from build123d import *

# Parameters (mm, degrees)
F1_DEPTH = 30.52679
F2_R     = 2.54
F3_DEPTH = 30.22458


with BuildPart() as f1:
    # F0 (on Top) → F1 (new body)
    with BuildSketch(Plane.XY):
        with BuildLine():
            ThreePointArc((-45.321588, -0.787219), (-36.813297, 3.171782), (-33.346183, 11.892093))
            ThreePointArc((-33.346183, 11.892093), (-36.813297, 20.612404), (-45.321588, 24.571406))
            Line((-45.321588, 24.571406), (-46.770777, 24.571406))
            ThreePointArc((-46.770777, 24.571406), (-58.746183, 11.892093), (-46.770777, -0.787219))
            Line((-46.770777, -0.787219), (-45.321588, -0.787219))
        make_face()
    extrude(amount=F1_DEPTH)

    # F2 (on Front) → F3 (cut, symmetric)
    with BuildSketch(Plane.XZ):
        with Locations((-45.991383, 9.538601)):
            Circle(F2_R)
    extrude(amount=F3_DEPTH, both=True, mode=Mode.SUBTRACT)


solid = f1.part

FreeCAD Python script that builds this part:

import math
import FreeCAD as App
import Part
import Sketcher
Q = App.Units.Quantity

doc = App.newDocument("Part")
body = doc.addObject("PartDesign::Body", "Body")

# Sketch on XY plane
sketch1 = doc.addObject("Sketcher::SketchObject", "Sketch")
body.addObject(sketch1)
sketch1.AttachmentSupport = (doc.XY_Plane, [""])
sketch1.MapMode = "FlatFace"
sketch1.addGeometry(Part.ArcOfCircle(Part.Circle(App.Vector(-46, 11.9, 0), App.Vector(0, 0, 1), 12.7), math.radians(-87), math.radians(0)), False)
sketch1.addGeometry(Part.ArcOfCircle(Part.Circle(App.Vector(-46, 11.9, 0), App.Vector(0, 0, 1), 12.7), math.radians(0), math.radians(87)), False)
sketch1.addGeometry(Part.LineSegment(App.Vector(-45.3, 24.6, 0), App.Vector(-46.8, 24.6, 0)), False)
sketch1.addGeometry(Part.ArcOfCircle(Part.Circle(App.Vector(-46, 11.9, 0), App.Vector(0, 0, 1), 12.7), math.radians(93), math.radians(267)), False)
sketch1.addGeometry(Part.LineSegment(App.Vector(-46.8, -0.8, 0), App.Vector(-45.3, -0.8, 0)), False)
sketch1.addConstraint(Sketcher.Constraint("Tangent", 0, 2, 1, 1))
sketch1.addConstraint(Sketcher.Constraint("Coincident", 1, 2, 2, 1))
sketch1.addConstraint(Sketcher.Constraint("Coincident", 2, 2, 3, 1))
sketch1.addConstraint(Sketcher.Constraint("Coincident", 3, 2, 4, 1))
sketch1.addConstraint(Sketcher.Constraint("Coincident", 4, 2, 0, 1))
sketch1.addConstraint(Sketcher.Constraint("Horizontal", 2))
sketch1.addConstraint(Sketcher.Constraint("Horizontal", 4))
sketch1.addConstraint(Sketcher.Constraint("Coincident", 3, 3, 0, 3))
sketch1.addConstraint(Sketcher.Constraint("Equal", 0, 1))
sketch1.addConstraint(Sketcher.Constraint("Equal", 1, 3))
sketch1.addConstraint(Sketcher.Constraint("Horizontal", 3, 3, 0, 2))
sketch1.addConstraint(Sketcher.Constraint("Vertical", 2, 2, 3, 2))
sketch1.addConstraint(Sketcher.Constraint("Radius", 0, Q("0.4999999 in")))
sketch1.addConstraint(Sketcher.Constraint("DistanceX", 2, 2, 2, 1, 1.449189))
sketch1.addConstraint(Sketcher.Constraint("DistanceX", 0, 3, -1, 1, 46.046182))
sketch1.addConstraint(Sketcher.Constraint("DistanceY", -1, 1, 0, 3, 11.892092))
pad1 = doc.addObject("PartDesign::Pad", "Pad")
body.addObject(pad1)
pad1.Profile = sketch1
pad1.Length = 30.52679

# Sketch on XZ plane
sketch2 = doc.addObject("Sketcher::SketchObject", "Sketch001")
body.addObject(sketch2)
sketch2.AttachmentSupport = (doc.XZ_Plane, [""])
sketch2.MapMode = "FlatFace"
sketch2.addGeometry(Part.Circle(App.Vector(-46, 9.5, 0), App.Vector(0, 0, 1), 2.5), False)
sketch2.addConstraint(Sketcher.Constraint("Diameter", 0, Q("0.2 in")))
sketch2.addConstraint(Sketcher.Constraint("DistanceY", -1, 1, 0, 3, 9.538601))
sketch2.addConstraint(Sketcher.Constraint("DistanceX", 0, 3, -1, 1, 45.991383))
pocket1 = doc.addObject("PartDesign::Pocket", "Pocket")
body.addObject(pocket1)
pocket1.Profile = sketch2
pocket1.Length = 60.44916
pocket1.Midplane = True

doc.recompute()
